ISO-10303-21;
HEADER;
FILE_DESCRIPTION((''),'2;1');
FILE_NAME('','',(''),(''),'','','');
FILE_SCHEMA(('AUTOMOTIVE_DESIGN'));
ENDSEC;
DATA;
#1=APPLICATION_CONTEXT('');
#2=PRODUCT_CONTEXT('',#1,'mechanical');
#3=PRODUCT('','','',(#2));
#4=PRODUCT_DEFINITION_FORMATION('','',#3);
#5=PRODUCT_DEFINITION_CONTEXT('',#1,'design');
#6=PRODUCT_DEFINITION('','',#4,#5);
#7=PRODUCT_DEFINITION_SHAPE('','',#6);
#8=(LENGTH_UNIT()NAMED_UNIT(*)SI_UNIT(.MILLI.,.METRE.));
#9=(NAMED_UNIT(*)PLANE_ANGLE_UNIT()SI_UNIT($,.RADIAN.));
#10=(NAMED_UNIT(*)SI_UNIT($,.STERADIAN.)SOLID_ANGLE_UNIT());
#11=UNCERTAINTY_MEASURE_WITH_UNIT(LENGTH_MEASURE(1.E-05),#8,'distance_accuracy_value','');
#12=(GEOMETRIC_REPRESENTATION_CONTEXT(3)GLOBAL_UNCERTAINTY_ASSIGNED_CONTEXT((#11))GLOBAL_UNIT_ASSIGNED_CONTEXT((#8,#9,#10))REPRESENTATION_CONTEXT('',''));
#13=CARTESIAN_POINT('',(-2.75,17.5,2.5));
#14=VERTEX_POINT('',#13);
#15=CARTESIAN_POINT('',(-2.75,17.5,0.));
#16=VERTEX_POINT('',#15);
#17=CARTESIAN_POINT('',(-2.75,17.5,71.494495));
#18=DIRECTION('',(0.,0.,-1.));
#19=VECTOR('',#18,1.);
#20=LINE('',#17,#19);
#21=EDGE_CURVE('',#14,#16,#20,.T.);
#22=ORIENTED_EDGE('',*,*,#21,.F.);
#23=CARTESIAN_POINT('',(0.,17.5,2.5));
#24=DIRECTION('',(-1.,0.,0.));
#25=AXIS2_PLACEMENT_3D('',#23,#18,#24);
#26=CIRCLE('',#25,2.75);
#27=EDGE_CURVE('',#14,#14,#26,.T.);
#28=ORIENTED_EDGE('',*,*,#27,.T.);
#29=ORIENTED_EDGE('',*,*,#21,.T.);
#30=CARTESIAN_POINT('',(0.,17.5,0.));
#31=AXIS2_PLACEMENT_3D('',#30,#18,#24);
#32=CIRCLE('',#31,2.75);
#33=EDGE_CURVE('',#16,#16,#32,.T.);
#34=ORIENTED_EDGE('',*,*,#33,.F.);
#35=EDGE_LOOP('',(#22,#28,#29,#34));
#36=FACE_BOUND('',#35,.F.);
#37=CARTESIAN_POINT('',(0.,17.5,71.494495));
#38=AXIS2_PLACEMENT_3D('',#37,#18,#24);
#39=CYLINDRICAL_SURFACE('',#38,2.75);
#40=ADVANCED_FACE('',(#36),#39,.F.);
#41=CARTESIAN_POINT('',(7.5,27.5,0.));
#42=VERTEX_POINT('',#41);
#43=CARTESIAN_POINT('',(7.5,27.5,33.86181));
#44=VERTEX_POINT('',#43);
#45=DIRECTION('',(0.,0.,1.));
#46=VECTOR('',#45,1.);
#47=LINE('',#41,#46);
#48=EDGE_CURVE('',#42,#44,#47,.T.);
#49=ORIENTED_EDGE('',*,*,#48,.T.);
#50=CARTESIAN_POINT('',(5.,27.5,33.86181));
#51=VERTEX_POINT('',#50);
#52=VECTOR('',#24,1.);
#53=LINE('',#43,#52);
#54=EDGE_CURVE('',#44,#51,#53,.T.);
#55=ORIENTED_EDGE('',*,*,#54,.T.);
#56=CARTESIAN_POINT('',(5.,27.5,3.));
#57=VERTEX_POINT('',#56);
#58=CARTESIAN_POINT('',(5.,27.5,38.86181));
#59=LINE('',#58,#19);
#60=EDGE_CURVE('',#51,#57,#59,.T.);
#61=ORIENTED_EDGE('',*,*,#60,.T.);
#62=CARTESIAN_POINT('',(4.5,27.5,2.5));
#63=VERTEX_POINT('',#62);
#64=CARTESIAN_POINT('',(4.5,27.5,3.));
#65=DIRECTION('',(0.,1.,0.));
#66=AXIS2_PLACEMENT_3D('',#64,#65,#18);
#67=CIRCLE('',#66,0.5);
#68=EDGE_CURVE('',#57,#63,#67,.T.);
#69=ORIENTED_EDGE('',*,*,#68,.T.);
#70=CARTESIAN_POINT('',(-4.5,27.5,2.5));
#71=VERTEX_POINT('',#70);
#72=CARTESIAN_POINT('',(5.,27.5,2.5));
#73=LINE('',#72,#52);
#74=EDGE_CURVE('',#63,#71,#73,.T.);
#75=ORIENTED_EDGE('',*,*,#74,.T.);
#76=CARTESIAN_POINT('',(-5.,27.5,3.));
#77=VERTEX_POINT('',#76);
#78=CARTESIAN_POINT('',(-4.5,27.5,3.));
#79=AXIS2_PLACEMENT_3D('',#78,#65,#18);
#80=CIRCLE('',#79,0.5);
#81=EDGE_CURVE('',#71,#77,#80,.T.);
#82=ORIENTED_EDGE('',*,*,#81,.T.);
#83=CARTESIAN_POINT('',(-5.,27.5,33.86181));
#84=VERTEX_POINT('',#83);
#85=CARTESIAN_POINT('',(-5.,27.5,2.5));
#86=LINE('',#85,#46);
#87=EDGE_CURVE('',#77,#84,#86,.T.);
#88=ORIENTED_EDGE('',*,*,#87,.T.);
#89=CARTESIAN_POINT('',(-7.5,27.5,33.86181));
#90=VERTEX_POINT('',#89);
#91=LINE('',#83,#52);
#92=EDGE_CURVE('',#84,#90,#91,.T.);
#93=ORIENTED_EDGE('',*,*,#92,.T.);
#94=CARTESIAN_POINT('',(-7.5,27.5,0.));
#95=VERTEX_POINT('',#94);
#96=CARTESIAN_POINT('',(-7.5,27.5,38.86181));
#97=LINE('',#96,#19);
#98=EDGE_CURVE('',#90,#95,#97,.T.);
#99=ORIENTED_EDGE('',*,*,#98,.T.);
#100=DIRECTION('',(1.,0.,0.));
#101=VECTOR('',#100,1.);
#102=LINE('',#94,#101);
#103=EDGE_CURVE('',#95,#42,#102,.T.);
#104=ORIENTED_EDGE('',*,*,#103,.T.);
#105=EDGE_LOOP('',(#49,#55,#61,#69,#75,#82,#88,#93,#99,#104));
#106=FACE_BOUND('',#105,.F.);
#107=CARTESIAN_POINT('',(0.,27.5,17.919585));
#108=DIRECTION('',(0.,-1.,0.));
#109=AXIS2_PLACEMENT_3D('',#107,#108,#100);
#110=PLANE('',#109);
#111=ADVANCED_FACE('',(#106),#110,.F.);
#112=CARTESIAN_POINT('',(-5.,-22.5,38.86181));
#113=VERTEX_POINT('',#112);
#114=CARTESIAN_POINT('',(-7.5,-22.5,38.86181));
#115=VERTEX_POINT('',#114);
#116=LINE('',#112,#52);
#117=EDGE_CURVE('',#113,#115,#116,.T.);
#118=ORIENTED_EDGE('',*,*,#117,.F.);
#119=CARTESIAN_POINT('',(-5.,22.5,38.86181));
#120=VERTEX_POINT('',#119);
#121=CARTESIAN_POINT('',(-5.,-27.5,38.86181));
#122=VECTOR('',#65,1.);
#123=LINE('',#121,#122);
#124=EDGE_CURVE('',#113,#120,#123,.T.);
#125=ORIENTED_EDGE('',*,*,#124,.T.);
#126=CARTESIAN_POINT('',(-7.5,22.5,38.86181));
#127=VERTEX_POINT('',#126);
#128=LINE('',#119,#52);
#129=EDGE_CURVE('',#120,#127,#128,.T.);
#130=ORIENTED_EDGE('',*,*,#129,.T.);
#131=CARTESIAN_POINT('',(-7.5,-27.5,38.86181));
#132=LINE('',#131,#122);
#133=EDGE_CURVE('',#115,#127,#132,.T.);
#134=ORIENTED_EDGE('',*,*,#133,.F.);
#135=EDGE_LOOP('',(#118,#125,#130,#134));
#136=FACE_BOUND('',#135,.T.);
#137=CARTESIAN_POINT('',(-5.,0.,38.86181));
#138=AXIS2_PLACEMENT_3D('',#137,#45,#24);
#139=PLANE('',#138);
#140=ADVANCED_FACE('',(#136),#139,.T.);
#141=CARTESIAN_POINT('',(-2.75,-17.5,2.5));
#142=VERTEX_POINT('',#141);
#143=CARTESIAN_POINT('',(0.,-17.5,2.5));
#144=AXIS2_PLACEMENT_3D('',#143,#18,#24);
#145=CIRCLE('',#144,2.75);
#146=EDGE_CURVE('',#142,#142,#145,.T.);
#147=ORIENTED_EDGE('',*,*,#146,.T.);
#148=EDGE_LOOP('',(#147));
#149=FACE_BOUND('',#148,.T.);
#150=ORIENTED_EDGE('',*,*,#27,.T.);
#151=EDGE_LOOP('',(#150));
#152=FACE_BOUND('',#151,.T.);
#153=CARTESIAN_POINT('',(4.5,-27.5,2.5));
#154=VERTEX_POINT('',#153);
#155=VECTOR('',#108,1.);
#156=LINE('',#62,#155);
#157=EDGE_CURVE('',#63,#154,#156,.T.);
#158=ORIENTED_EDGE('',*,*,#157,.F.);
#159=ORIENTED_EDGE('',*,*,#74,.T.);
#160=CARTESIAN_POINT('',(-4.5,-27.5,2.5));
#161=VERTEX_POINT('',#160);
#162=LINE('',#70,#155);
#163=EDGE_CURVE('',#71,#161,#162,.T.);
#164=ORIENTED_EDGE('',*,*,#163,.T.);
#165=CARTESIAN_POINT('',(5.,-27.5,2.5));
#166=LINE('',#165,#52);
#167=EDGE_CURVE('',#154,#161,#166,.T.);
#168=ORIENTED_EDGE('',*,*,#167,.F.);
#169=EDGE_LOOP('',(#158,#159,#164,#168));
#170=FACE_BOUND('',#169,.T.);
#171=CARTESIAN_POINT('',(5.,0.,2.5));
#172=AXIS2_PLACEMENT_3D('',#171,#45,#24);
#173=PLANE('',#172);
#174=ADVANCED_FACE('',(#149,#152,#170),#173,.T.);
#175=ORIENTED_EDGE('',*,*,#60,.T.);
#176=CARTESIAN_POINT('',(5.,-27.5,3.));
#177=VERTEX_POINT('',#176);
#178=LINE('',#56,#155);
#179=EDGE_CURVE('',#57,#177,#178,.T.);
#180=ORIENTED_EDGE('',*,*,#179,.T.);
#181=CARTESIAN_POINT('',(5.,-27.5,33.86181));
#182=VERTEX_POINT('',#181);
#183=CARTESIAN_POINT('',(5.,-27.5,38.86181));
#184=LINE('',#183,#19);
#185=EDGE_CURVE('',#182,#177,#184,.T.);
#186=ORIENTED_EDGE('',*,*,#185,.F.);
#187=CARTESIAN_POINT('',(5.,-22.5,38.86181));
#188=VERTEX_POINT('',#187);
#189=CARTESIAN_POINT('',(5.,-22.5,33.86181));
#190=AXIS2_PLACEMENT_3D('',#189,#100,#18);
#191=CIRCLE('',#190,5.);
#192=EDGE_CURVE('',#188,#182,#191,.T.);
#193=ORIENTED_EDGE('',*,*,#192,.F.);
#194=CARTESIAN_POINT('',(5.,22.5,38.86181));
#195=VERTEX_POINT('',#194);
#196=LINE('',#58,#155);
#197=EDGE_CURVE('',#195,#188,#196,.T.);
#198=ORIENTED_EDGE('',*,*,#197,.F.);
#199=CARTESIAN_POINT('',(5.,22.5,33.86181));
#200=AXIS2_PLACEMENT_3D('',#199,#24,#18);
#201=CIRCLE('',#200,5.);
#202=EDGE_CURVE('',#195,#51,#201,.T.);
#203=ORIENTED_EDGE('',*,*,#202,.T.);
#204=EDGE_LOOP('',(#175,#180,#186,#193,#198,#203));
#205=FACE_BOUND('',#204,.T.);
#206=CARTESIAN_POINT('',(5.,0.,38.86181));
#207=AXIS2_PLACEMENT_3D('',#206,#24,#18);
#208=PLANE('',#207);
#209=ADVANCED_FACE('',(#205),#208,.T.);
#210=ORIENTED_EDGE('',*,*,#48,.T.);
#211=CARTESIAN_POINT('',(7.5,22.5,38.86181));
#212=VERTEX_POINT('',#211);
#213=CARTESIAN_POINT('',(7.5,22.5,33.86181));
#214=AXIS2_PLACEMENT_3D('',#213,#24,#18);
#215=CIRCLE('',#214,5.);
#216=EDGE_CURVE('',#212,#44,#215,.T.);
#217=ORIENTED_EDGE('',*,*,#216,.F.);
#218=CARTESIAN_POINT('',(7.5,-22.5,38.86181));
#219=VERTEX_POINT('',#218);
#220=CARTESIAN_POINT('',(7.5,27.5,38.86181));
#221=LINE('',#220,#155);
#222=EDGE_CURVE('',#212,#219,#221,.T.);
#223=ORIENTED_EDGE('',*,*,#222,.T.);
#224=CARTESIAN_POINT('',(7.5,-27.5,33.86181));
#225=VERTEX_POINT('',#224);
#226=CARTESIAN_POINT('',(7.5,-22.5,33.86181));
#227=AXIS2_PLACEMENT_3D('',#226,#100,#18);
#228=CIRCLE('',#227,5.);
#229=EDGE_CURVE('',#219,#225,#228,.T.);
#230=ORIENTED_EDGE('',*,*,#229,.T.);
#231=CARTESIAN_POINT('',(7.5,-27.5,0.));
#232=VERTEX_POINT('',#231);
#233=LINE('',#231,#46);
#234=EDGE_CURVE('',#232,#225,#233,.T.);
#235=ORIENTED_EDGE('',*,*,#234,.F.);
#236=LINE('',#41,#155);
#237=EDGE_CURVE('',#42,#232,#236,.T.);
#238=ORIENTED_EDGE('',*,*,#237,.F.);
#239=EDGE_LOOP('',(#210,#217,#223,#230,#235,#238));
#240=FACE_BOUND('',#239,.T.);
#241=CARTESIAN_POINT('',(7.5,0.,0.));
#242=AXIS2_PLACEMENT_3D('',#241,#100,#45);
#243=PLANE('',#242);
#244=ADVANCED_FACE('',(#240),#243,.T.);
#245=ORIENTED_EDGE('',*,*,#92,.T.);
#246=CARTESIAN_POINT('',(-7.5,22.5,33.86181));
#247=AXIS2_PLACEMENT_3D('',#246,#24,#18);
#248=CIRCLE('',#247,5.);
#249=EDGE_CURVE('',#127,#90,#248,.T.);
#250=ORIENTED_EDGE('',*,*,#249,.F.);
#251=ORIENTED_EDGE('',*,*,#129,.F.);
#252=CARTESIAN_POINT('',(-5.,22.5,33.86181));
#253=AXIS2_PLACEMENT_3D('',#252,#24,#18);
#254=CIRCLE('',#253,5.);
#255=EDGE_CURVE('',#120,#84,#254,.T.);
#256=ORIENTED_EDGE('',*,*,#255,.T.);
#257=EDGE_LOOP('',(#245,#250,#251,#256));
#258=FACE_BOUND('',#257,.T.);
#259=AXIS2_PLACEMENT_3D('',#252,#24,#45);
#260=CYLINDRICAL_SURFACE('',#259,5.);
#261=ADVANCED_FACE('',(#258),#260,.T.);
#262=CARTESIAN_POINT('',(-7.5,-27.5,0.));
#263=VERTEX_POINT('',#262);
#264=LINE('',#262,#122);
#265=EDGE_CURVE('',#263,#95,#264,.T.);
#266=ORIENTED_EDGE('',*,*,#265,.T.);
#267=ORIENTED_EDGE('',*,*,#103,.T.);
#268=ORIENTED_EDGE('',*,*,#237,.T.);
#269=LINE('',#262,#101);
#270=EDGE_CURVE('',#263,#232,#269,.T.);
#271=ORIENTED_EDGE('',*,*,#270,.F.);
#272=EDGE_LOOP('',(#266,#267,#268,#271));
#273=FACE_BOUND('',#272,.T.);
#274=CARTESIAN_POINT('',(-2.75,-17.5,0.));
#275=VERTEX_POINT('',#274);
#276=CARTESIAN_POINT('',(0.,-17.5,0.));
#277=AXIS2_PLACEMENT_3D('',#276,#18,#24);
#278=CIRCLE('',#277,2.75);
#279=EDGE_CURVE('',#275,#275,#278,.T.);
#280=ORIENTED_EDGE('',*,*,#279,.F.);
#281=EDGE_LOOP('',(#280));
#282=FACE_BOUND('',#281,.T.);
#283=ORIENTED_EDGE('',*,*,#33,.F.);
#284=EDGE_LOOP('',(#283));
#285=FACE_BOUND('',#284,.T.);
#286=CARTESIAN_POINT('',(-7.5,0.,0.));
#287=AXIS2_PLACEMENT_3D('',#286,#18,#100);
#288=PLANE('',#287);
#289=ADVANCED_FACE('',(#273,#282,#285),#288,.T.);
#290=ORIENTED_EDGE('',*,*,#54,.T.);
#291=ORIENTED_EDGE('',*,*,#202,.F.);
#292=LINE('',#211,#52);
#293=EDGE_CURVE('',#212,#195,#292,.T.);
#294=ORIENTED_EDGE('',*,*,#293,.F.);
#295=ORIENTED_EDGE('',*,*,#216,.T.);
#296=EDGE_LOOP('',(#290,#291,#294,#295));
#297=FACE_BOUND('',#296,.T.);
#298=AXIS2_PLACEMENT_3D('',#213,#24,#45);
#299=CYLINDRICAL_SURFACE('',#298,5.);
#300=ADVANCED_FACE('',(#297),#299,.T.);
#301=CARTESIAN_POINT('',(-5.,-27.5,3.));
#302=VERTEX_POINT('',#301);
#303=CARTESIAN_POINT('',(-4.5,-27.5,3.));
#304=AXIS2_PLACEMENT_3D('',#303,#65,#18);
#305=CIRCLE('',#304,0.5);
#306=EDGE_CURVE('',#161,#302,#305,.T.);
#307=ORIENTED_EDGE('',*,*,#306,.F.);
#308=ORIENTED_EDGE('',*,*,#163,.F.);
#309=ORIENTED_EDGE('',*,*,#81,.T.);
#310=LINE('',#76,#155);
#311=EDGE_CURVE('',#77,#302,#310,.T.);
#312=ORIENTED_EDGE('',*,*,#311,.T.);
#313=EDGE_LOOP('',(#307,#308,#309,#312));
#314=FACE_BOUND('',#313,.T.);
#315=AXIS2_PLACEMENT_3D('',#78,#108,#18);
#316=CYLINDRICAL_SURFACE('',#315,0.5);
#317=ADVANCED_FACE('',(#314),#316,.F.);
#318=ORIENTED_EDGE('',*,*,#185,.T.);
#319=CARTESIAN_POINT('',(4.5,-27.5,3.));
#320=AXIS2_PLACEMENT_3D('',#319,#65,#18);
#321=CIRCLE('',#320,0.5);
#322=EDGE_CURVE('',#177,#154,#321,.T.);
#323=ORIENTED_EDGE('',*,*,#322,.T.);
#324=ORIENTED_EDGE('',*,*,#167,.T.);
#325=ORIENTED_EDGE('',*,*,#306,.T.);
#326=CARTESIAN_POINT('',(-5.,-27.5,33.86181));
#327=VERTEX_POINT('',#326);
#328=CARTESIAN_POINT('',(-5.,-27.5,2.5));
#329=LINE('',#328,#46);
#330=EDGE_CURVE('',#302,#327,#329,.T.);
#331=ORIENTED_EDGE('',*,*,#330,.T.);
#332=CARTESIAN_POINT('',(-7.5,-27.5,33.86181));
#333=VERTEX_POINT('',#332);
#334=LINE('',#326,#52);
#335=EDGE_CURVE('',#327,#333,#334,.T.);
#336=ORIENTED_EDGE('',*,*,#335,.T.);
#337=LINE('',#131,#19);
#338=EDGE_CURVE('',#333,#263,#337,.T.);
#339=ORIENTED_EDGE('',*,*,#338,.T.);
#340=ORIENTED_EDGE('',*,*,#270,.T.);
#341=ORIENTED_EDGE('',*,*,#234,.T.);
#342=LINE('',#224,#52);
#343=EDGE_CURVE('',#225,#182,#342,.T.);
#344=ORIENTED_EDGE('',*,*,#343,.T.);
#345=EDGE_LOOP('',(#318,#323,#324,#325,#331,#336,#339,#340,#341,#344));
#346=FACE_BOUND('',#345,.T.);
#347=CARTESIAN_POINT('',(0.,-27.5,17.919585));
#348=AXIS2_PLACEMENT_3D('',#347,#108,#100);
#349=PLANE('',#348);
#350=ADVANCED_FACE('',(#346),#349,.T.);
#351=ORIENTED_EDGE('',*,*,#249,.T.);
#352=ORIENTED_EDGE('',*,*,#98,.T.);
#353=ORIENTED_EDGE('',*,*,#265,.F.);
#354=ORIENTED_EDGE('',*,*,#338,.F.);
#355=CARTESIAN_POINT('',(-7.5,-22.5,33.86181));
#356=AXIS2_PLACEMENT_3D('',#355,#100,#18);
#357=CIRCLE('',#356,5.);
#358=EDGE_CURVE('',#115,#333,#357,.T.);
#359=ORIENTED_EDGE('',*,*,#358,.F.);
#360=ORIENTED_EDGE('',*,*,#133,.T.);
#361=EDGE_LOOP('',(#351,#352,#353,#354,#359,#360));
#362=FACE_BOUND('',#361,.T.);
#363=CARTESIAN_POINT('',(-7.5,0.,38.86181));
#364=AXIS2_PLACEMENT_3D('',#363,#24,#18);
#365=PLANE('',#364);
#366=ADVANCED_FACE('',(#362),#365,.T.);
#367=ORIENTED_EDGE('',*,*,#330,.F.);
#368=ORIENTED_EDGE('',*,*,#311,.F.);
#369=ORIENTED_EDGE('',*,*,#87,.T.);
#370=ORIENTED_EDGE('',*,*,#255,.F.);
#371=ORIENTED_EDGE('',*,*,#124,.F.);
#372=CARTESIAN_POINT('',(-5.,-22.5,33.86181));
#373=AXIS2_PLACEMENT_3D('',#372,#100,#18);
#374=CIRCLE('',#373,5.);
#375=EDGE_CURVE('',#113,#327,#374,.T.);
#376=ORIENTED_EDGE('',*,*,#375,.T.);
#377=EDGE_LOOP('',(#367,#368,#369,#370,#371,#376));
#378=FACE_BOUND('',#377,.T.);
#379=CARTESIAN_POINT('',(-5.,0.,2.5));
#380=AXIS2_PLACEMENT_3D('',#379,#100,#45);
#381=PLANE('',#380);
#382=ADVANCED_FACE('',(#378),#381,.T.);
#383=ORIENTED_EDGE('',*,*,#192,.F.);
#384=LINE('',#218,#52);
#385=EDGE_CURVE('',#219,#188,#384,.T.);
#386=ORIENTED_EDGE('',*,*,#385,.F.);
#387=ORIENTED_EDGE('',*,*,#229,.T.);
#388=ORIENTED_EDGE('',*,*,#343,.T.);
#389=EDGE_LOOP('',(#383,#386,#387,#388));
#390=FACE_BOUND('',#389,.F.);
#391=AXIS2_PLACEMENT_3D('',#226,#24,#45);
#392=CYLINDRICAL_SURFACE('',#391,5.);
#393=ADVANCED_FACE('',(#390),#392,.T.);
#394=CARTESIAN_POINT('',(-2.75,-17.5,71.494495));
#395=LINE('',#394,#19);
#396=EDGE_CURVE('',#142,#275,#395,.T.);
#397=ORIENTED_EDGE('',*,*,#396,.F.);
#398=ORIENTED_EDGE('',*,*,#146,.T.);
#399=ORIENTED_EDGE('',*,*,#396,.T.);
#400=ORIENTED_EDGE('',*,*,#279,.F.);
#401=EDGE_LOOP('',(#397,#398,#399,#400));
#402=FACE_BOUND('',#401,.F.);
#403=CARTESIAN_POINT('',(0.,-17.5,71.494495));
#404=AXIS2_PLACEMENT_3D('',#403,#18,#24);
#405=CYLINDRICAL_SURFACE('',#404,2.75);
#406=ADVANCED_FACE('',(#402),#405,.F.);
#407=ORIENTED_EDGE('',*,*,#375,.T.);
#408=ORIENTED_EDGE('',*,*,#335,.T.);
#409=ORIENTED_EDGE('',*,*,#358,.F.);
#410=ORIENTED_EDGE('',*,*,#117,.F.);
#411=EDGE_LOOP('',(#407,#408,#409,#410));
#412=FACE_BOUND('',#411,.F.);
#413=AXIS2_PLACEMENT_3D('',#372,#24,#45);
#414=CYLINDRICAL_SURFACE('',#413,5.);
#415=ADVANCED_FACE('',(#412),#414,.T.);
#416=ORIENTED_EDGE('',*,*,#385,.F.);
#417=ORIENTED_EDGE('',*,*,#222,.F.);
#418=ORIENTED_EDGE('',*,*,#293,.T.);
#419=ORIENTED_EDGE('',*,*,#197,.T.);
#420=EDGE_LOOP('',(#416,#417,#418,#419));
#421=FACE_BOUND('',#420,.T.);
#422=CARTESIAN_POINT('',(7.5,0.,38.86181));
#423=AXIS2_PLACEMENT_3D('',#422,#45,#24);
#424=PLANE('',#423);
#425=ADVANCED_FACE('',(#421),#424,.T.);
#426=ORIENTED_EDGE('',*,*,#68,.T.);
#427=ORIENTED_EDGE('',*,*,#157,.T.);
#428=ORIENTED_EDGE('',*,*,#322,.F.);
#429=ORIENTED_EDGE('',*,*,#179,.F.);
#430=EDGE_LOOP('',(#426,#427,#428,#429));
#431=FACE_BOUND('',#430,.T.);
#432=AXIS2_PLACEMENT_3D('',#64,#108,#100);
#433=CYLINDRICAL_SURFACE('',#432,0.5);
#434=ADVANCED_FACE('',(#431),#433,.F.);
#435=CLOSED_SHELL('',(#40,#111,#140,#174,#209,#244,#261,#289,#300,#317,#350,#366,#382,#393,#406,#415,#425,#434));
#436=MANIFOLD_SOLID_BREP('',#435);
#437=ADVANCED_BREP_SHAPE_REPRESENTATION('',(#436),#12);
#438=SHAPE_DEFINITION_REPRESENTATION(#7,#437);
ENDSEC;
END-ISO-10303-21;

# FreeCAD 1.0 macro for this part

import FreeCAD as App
import Part
import Sketcher
Q = App.Units.Quantity


def edges_at(feature, points):
    """Names of the edges that pass closest to the given points."""
    edges = feature.Shape.Edges
    near = lambda p: min(range(len(edges)), key=lambda i: edges[i].distToShape(Part.Vertex(*p))[0])
    return sorted({f"Edge{near(p) + 1}" for p in points})


def add_polygon(sketch, points):
    """Adds a closed chain of lines whose ends are joined by coincident constraints."""
    first, n = sketch.GeometryCount, len(points)
    for a, b in zip(points, points[1:] + points[:1]):
        sketch.addGeometry(Part.LineSegment(App.Vector(*a, 0), App.Vector(*b, 0)), False)
    for i in range(n):
        sketch.addConstraint(Sketcher.Constraint("Coincident", first + i, 2, first + (i + 1) % n, 1))

doc = App.newDocument("Part")
params = doc.addObject("Spreadsheet::Sheet", "Params")
for row, (alias, value) in enumerate([
    ("sketch1_width", "15 mm"),
    ("sketch1_width2", "10 mm"),
    ("pad1_length", "55 mm"),
    ("fillet_radius", "5 mm"),
    ("fillet2_radius", "0.5 mm"),
    ("sketch2_diameter", "5.5 mm"),
    ("hole_diameter", "5.5 mm"),
], start=1):
    params.set(f"A{row}", alias)
    params.set(f"B{row}", "=" + value)
    params.setAlias(f"B{row}", alias)

body = doc.addObject("PartDesign::Body", "Body")

# Sketch on XZ plane
sketch1 = body.newObject("Sketcher::SketchObject", "Sketch")
sketch1.AttachmentSupport = (doc.getObject("XZ_Plane"), [""])
sketch1.MapMode = "FlatFace"
add_polygon(sketch1, [(-7.5, 0), (7.5, 0), (7.5, 38.86181), (5, 38.86181), (5, 2.5), (-5, 2.5), (-5, 38.86181), (-7.5, 38.86181)])  # lines 0-7
sketch1.addConstraint([
    Sketcher.Constraint("Horizontal", 0),
    Sketcher.Constraint("Vertical", 1),
    Sketcher.Constraint("Horizontal", 2),
    Sketcher.Constraint("Vertical", 3),
    Sketcher.Constraint("Horizontal", 4),
    Sketcher.Constraint("Vertical", 5),
    Sketcher.Constraint("Horizontal", 6),
    Sketcher.Constraint("Vertical", 7),
    Sketcher.Constraint("Symmetric", 0, 2, 7, 2, -1, 1),
    Sketcher.Constraint("Symmetric", 2, 2, 5, 2, -2),
    Sketcher.Constraint("DistanceX", 0, 1, 0, 2, Q("15 mm")),
    Sketcher.Constraint("DistanceX", 4, 2, 4, 1, Q("10 mm")),
    Sketcher.Constraint("DistanceY", -1, 1, 3, 2, Q("2.5 mm")),
    Sketcher.Constraint("DistanceY", 1, 1, 1, 2, Q("38.86181 mm")),
])
sketch1.setExpression("Constraints[18]", "Params.sketch1_width")
sketch1.setExpression("Constraints[19]", "Params.sketch1_width2")
pad1 = body.newObject("PartDesign::Pad", "Pad")
pad1.Profile = sketch1
pad1.setExpression("Length", "Params.pad1_length")
pad1.Midplane = True
doc.recompute()

fillet = body.newObject("PartDesign::Fillet", "Fillet")
fillet.Base = (pad1, edges_at(pad1, [
    (6.25, -27.5, 38.862),
    (-6.25, -27.5, 38.862),
    (6.25, 27.5, 38.862),
    (-6.25, 27.5, 38.862),
]))
fillet.setExpression("Radius", "Params.fillet_radius")
doc.recompute()

fillet2 = body.newObject("PartDesign::Fillet", "Fillet001")
fillet2.Base = (fillet, edges_at(fillet, [(-5, 0, 2.5), (5, 0, 2.5)]))
fillet2.setExpression("Radius", "Params.fillet2_radius")

# Sketch on XY plane
sketch2 = body.newObject("Sketcher::SketchObject", "Sketch001")
sketch2.AttachmentSupport = (doc.getObject("XY_Plane"), [""])
sketch2.MapMode = "FlatFace"
sketch2.AttachmentOffset = App.Placement(App.Vector(0, 0, 2.5), App.Rotation())
sketch2.addGeometry([
    Part.Circle(App.Vector(0, 17.5, 0), App.Vector(0, 0, 1), 2.75),
    Part.Circle(App.Vector(0, -17.5, 0), App.Vector(0, 0, 1), 2.75),
], False)
sketch2.addConstraint([
    Sketcher.Constraint("Equal", 0, 1),
    Sketcher.Constraint("Symmetric", 0, 3, 1, 3, -1, 1),
    Sketcher.Constraint("PointOnObject", 0, 3, -2),
    Sketcher.Constraint("Diameter", 0, Q("5.5 mm")),
    Sketcher.Constraint("DistanceY", 1, 3, 0, 3, Q("35 mm")),
])
sketch2.setExpression("Constraints[3]", "Params.sketch2_diameter")
doc.recompute()
hole = body.newObject("PartDesign::Hole", "Hole")
hole.Profile = sketch2
hole.ThreadType = "None"
hole.setExpression("Diameter", "Params.hole_diameter")
hole.DepthType = "ThroughAll"

doc.recompute()
